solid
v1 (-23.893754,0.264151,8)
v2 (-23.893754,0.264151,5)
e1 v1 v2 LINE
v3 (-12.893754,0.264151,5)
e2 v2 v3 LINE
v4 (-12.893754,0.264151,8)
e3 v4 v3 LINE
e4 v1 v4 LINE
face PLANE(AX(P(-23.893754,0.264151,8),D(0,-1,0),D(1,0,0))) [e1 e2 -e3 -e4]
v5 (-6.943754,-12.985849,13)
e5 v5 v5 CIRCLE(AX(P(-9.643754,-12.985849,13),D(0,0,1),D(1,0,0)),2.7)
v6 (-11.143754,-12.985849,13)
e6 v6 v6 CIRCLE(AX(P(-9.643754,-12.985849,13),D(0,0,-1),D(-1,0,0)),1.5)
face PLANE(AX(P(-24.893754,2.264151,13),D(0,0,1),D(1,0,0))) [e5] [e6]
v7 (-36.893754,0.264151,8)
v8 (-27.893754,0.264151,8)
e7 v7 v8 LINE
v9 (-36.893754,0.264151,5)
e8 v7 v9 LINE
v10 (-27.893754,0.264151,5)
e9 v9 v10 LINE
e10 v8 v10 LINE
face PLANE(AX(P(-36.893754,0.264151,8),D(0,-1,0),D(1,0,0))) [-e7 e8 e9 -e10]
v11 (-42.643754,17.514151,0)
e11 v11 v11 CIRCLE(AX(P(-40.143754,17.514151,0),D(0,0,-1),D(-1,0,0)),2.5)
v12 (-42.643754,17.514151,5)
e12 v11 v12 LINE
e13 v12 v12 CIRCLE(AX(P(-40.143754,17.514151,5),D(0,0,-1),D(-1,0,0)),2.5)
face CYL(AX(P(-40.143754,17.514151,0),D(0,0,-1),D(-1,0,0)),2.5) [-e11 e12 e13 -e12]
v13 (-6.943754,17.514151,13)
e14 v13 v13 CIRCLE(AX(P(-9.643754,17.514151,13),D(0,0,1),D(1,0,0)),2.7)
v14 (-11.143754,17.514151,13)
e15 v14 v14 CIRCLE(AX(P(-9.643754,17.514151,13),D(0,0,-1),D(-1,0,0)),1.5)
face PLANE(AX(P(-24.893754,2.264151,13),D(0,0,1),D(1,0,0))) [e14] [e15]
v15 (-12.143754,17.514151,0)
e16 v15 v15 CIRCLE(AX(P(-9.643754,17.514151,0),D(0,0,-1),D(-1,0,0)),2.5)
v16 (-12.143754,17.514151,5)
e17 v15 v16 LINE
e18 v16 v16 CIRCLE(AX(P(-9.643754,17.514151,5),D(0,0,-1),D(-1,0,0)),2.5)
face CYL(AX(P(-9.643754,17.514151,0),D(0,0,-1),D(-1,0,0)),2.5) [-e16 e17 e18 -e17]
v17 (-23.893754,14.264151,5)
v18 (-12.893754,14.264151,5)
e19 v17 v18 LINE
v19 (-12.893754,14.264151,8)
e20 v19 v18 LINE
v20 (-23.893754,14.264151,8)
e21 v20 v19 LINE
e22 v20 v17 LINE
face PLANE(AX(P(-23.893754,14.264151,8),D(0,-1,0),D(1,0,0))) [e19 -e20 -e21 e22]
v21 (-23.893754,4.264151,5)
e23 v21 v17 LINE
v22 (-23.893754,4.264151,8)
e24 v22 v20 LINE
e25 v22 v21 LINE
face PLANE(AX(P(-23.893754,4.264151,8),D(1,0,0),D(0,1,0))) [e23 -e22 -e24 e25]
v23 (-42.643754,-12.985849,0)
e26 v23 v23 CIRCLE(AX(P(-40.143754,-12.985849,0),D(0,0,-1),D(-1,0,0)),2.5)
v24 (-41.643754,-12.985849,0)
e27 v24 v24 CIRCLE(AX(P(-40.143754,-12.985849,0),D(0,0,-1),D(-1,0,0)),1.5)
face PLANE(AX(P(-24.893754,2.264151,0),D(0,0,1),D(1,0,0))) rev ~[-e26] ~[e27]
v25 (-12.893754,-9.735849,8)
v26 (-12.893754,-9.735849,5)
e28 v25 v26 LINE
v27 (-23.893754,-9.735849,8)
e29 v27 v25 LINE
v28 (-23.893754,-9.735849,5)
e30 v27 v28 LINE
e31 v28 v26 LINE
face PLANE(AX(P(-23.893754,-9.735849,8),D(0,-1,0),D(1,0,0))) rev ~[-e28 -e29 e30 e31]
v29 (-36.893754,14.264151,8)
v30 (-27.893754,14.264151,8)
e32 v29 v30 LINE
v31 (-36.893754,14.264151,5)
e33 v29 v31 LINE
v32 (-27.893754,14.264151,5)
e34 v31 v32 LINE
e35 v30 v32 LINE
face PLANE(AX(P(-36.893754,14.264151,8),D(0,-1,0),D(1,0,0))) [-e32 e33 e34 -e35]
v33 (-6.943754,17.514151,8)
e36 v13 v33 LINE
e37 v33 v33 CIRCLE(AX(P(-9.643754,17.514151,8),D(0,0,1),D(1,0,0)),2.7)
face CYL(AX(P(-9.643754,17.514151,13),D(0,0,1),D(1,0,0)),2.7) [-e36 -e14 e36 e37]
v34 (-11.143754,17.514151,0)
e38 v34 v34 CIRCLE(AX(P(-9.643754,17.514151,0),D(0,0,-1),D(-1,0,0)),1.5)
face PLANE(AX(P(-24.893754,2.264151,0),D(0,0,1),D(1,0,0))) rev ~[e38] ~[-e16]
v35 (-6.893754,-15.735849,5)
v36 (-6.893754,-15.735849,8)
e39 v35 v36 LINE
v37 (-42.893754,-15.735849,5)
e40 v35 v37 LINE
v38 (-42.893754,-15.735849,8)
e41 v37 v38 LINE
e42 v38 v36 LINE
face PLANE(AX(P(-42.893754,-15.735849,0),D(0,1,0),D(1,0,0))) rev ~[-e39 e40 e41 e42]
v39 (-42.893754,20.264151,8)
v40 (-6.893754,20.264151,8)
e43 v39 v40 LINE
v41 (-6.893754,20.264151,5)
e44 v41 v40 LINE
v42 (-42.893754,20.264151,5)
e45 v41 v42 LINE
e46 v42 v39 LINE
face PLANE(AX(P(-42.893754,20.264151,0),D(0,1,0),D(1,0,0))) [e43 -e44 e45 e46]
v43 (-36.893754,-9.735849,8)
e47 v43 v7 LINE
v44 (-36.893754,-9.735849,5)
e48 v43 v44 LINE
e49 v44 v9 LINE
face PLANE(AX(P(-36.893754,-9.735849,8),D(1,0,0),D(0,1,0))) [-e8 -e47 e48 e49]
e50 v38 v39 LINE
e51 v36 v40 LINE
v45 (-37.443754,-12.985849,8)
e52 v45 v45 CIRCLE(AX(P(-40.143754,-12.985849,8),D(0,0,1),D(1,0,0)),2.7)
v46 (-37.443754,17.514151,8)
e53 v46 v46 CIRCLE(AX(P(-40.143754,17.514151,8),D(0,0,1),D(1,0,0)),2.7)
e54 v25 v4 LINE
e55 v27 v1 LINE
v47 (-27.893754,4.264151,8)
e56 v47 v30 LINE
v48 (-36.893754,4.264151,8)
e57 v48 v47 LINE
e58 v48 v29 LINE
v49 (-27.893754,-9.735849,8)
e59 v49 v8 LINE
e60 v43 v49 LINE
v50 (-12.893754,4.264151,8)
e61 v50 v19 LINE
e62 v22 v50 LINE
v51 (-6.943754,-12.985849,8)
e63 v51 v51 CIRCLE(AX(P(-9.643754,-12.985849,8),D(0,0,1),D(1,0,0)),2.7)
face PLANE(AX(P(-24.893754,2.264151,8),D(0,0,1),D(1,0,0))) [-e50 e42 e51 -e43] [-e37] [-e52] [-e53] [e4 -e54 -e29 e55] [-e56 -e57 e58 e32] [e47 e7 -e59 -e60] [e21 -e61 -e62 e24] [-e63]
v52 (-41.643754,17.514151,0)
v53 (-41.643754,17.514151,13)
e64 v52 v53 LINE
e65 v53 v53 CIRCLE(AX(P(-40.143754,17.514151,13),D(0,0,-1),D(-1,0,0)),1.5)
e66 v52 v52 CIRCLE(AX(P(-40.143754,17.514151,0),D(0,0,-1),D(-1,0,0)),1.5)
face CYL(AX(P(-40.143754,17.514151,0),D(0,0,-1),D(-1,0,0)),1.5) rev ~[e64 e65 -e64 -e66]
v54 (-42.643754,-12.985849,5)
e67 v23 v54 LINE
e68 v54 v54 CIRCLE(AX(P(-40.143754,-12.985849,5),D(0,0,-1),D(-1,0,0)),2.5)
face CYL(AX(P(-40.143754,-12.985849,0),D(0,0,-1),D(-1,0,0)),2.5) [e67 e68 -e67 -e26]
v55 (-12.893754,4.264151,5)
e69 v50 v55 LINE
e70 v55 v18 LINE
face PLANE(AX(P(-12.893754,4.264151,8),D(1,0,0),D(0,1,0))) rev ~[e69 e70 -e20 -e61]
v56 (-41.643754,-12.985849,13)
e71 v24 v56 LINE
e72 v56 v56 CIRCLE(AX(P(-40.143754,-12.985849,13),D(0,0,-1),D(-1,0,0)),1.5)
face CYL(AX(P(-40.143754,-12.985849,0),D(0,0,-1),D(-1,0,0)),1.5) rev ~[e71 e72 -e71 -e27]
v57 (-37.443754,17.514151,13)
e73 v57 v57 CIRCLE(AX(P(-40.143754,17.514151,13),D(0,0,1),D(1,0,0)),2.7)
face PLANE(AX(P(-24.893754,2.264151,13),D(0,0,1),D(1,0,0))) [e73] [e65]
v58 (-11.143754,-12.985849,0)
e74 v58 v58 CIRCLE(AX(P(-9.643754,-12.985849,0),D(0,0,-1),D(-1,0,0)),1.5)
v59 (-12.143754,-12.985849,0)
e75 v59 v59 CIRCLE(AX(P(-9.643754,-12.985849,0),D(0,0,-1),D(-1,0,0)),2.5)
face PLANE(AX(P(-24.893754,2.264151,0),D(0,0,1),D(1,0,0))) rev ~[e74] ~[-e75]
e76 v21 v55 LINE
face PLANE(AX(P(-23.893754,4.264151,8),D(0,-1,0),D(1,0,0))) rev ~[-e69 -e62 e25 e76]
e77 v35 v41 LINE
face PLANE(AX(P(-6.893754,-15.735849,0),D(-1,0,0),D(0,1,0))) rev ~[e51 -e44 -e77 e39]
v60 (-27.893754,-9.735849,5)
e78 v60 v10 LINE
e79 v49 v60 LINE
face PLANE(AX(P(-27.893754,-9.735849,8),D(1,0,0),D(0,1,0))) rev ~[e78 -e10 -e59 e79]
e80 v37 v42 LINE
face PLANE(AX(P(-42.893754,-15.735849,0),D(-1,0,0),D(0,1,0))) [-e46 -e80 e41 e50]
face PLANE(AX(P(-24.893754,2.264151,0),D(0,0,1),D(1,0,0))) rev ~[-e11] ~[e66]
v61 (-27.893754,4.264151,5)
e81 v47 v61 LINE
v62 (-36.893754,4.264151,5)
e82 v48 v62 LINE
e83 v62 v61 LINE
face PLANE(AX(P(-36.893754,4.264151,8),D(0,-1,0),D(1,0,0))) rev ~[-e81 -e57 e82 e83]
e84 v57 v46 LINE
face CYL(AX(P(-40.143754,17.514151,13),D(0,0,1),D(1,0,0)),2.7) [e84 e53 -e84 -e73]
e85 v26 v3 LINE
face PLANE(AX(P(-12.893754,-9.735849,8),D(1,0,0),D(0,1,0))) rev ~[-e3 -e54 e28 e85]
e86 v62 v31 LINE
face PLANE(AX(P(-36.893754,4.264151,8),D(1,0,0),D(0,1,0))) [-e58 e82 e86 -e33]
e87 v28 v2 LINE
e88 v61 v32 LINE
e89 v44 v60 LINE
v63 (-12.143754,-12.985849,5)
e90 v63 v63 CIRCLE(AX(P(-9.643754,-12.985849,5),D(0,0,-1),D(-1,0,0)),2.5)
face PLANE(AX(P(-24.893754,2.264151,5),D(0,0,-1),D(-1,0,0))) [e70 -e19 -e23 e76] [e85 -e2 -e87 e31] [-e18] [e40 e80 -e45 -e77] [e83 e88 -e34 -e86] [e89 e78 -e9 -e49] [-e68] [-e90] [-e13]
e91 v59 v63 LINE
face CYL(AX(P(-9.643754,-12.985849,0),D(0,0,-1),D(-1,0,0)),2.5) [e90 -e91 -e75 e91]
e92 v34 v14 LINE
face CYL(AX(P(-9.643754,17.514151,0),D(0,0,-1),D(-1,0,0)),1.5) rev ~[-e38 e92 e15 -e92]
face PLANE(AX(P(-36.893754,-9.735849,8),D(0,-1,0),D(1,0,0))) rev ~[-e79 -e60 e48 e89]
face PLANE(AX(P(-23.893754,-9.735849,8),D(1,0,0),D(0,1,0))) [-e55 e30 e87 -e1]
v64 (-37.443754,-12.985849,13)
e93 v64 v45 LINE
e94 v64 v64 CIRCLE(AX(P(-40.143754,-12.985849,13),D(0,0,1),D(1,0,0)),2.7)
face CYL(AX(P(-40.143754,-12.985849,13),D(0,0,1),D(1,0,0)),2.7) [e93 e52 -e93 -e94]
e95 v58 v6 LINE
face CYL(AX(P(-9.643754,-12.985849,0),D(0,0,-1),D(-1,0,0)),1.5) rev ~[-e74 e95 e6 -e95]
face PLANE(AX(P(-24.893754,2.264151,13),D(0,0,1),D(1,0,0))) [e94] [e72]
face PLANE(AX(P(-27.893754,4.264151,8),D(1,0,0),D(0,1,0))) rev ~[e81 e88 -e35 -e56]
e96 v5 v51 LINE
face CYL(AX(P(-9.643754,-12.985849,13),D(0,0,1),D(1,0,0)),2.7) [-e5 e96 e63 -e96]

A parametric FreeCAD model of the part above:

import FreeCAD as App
import Part
import Sketcher

V = App.Vector
Q = App.Units.Quantity

doc = App.newDocument("Part")
body = doc.addObject("PartDesign::Body", "Body")

# Sketch on XY plane
sketch1 = body.newObject("Sketcher::SketchObject", "Sketch")
sketch1.AttachmentSupport = (doc.getObject("XY_Plane"), [""])
sketch1.MapMode = "FlatFace"
sketch1.addGeometry([
    Part.LineSegment(V(-43, 20, 0), V(-43, -16, 0)),
    Part.LineSegment(V(-43, -16, 0), V(-7, -16, 0)),
    Part.LineSegment(V(-7, -16, 0), V(-7, 20, 0)),
    Part.LineSegment(V(-7, 20, 0), V(-43, 20, 0)),
], False)
sketch1.addConstraint([
    Sketcher.Constraint("Coincident", 0, 2, 1, 1),
    Sketcher.Constraint("Coincident", 1, 2, 2, 1),
    Sketcher.Constraint("Coincident", 2, 2, 3, 1),
    Sketcher.Constraint("Coincident", 3, 2, 0, 1),
    Sketcher.Constraint("Vertical", 0),
    Sketcher.Constraint("Horizontal", 1),
    Sketcher.Constraint("Vertical", 2),
    Sketcher.Constraint("Horizontal", 3),
    Sketcher.Constraint("Equal", 3, 0),
    Sketcher.Constraint("DistanceX", 1, 1, 1, 2, Q("36 mm")),
    Sketcher.Constraint("DistanceY", 0, 2, -1, 1, Q("15.735849 mm")),
    Sketcher.Constraint("DistanceX", 0, 2, -1, 1, Q("42.893754 mm")),
])
pad1 = body.newObject("PartDesign::Pad", "Pad")
pad1.Profile = sketch1
pad1.Length = 13

# Sketch on XY plane
sketch2 = body.newObject("Sketcher::SketchObject", "Sketch001")
sketch2.AttachmentSupport = (doc.getObject("XY_Plane"), [""])
sketch2.MapMode = "FlatFace"
sketch2.addGeometry([
    Part.Circle(V(-40.1, 17.5, 0), V(0, 0, 1), 1.5),
    Part.Circle(V(-40.1, -13, 0), V(0, 0, 1), 1.5),
    Part.Circle(V(-9.6, -13, 0), V(0, 0, 1), 1.5),
    Part.Circle(V(-9.6, 17.5, 0), V(0, 0, 1), 1.5),
], False)
sketch2.addConstraint([
    Sketcher.Constraint("Equal", 0, 1),
    Sketcher.Constraint("Equal", 1, 2),
    Sketcher.Constraint("Equal", 2, 3),
    Sketcher.Constraint("Horizontal", 1, 3, 2, 3),
    Sketcher.Constraint("Horizontal", 0, 3, 3, 3),
    Sketcher.Constraint("Vertical", 0, 3, 1, 3),
    Sketcher.Constraint("Vertical", 2, 3, 3, 3),
    Sketcher.Constraint("Diameter", 0, Q("3 mm")),
    Sketcher.Constraint("DistanceY", 1, 3, 0, 3, Q("30.5 mm")),
    Sketcher.Constraint("DistanceX", 1, 3, 2, 3, Q("30.5 mm")),
    Sketcher.Constraint("DistanceY", -1, 1, 0, 3, Q("17.514151 mm")),
    Sketcher.Constraint("DistanceX", 0, 3, -1, 1, Q("40.143754 mm")),
])
pocket1 = body.newObject("PartDesign::Pocket", "Pocket")
pocket1.Profile = sketch2
pocket1.Length = 13
pocket1.Reversed = True

# Sketch on XY plane
sketch3 = body.newObject("Sketcher::SketchObject", "Sketch002")
sketch3.AttachmentSupport = (doc.getObject("XY_Plane"), [""])
sketch3.MapMode = "FlatFace"
sketch3.addGeometry([
    Part.LineSegment(V(-6.9, 20.3, 0), V(-6.9, -15.7, 0)),  # 0
    Part.LineSegment(V(-6.9, -15.7, 0), V(-42.9, -15.7, 0)),  # 1
    Part.LineSegment(V(-42.9, -15.7, 0), V(-42.9, 20.3, 0)),  # 2
    Part.LineSegment(V(-42.9, 20.3, 0), V(-6.9, 20.3, 0)),  # 3
    Part.Circle(V(-9.6, -13, 0), V(0, 0, 1), 2.5),  # 4
    Part.Circle(V(-40.1, -13, 0), V(0, 0, 1), 2.5),  # 5
    Part.Circle(V(-9.6, 17.5, 0), V(0, 0, 1), 2.5),  # 6
    Part.Circle(V(-40.1, 17.5, 0), V(0, 0, 1), 2.5),  # 7
], False)
sketch3.addConstraint([
    Sketcher.Constraint("Coincident", 0, 2, 1, 1),
    Sketcher.Constraint("Coincident", 1, 2, 2, 1),
    Sketcher.Constraint("Coincident", 2, 2, 3, 1),
    Sketcher.Constraint("Coincident", 3, 2, 0, 1),
    Sketcher.Constraint("Vertical", 0),
    Sketcher.Constraint("Horizontal", 1),
    Sketcher.Constraint("Vertical", 2),
    Sketcher.Constraint("Horizontal", 3),
    Sketcher.Constraint("Equal", 4, 5),
    Sketcher.Constraint("Equal", 5, 6),
    Sketcher.Constraint("Equal", 6, 7),
    Sketcher.Constraint("Horizontal", 4, 3, 5, 3),
    Sketcher.Constraint("Horizontal", 6, 3, 7, 3),
    Sketcher.Constraint("Vertical", 4, 3, 6, 3),
    Sketcher.Constraint("Vertical", 5, 3, 7, 3),
    Sketcher.Constraint("Equal", 3, 0),
    Sketcher.Constraint("Diameter", 4, Q("5 mm")),
    Sketcher.Constraint("DistanceX", 1, 2, 1, 1, Q("36 mm")),
    Sketcher.Constraint("DistanceX", 5, 3, 4, 3, Q("30.5 mm")),
    Sketcher.Constraint("DistanceY", 4, 3, 6, 3, Q("30.5 mm")),
    Sketcher.Constraint("DistanceX", 4, 3, 0, 2, Q("2.75 mm")),
    Sketcher.Constraint("DistanceY", 0, 2, 4, 3, Q("2.75 mm")),
    Sketcher.Constraint("DistanceY", 4, 3, -1, 1, Q("12.985849 mm")),
    Sketcher.Constraint("DistanceX", 4, 3, -1, 1, Q("9.643754 mm")),
])
pocket2 = body.newObject("PartDesign::Pocket", "Pocket001")
pocket2.Profile = sketch3
pocket2.Length = 5
pocket2.Reversed = True

# Sketch on XY plane
sketch4 = body.newObject("Sketcher::SketchObject", "Sketch003")
sketch4.AttachmentSupport = (doc.getObject("XY_Plane"), [""])
sketch4.MapMode = "FlatFace"
sketch4.AttachmentOffset = App.Placement(V(0, 0, 13), App.Rotation())
sketch4.addGeometry([
    Part.LineSegment(V(-42.9, 20.3, 0), V(-42.9, -15.7, 0)),  # 0
    Part.LineSegment(V(-42.9, -15.7, 0), V(-6.9, -15.7, 0)),  # 1
    Part.LineSegment(V(-6.9, -15.7, 0), V(-6.9, 20.3, 0)),  # 2
    Part.LineSegment(V(-6.9, 20.3, 0), V(-42.9, 20.3, 0)),  # 3
    Part.Circle(V(-40.1, -13, 0), V(0, 0, 1), 2.7),  # 4
    Part.Circle(V(-9.6, -13, 0), V(0, 0, 1), 2.7),  # 5
    Part.Circle(V(-40.1, 17.5, 0), V(0, 0, 1), 2.7),  # 6
    Part.Circle(V(-9.6, 17.5, 0), V(0, 0, 1), 2.7),  # 7
], False)
sketch4.addConstraint([
    Sketcher.Constraint("Coincident", 0, 2, 1, 1),
    Sketcher.Constraint("Coincident", 1, 2, 2, 1),
    Sketcher.Constraint("Coincident", 2, 2, 3, 1),
    Sketcher.Constraint("Coincident", 3, 2, 0, 1),
    Sketcher.Constraint("Vertical", 0),
    Sketcher.Constraint("Horizontal", 1),
    Sketcher.Constraint("Vertical", 2),
    Sketcher.Constraint("Horizontal", 3),
    Sketcher.Constraint("Equal", 4, 5),
    Sketcher.Constraint("Equal", 5, 6),
    Sketcher.Constraint("Equal", 6, 7),
    Sketcher.Constraint("Horizontal", 4, 3, 5, 3),
    Sketcher.Constraint("Horizontal", 6, 3, 7, 3),
    Sketcher.Constraint("Vertical", 4, 3, 6, 3),
    Sketcher.Constraint("Vertical", 5, 3, 7, 3),
    Sketcher.Constraint("Equal", 3, 0),
    Sketcher.Constraint("Diameter", 4, Q("5.4 mm")),
    Sketcher.Constraint("DistanceX", 1, 1, 1, 2, Q("36 mm")),
    Sketcher.Constraint("DistanceX", 4, 3, 5, 3, Q("30.5 mm")),
    Sketcher.Constraint("DistanceY", 4, 3, 6, 3, Q("30.5 mm")),
    Sketcher.Constraint("DistanceX", 0, 2, 4, 3, Q("2.75 mm")),
    Sketcher.Constraint("DistanceY", 0, 2, 4, 3, Q("2.75 mm")),
    Sketcher.Constraint("DistanceY", 4, 3, -1, 1, Q("12.985849 mm")),
    Sketcher.Constraint("DistanceX", 4, 3, -1, 1, Q("40.143754 mm")),
])
pocket3 = body.newObject("PartDesign::Pocket", "Pocket002")
pocket3.Profile = sketch4
pocket3.Length = 5

# Sketch on XY plane
sketch5 = body.newObject("Sketcher::SketchObject", "Sketch004")
sketch5.AttachmentSupport = (doc.getObject("XY_Plane"), [""])
sketch5.MapMode = "FlatFace"
sketch5.AttachmentOffset = App.Placement(V(0, 0, 8), App.Rotation())
sketch5.addGeometry([
    Part.LineSegment(V(-37, 0, 0), V(-37, -10, 0)),  # 0
    Part.LineSegment(V(-37, -10, 0), V(-28, -10, 0)),  # 1
    Part.LineSegment(V(-28, -10, 0), V(-28, 0, 0)),  # 2
    Part.LineSegment(V(-28, 0, 0), V(-37, 0, 0)),  # 3
    Part.LineSegment(V(-37, 14, 0), V(-37, 4, 0)),  # 4
    Part.LineSegment(V(-37, 4, 0), V(-28, 4, 0)),  # 5
    Part.LineSegment(V(-28, 4, 0), V(-28, 14, 0)),  # 6
    Part.LineSegment(V(-28, 14, 0), V(-37, 14, 0)),  # 7
    Part.LineSegment(V(-24, 0, 0), V(-24, -10, 0)),  # 8
    Part.LineSegment(V(-24, -10, 0), V(-13, -10, 0)),  # 9
    Part.LineSegment(V(-13, -10, 0), V(-13, 0, 0)),  # 10
    Part.LineSegment(V(-13, 0, 0), V(-24, 0, 0)),  # 11
    Part.LineSegment(V(-24, 14, 0), V(-24, 4, 0)),  # 12
    Part.LineSegment(V(-24, 4, 0), V(-13, 4, 0)),  # 13
    Part.LineSegment(V(-13, 4, 0), V(-13, 14, 0)),  # 14
    Part.LineSegment(V(-13, 14, 0), V(-24, 14, 0)),  # 15
], False)
sketch5.addConstraint([
    Sketcher.Constraint("Coincident", 0, 2, 1, 1),
    Sketcher.Constraint("Coincident", 1, 2, 2, 1),
    Sketcher.Constraint("Coincident", 2, 2, 3, 1),
    Sketcher.Constraint("Coincident", 3, 2, 0, 1),
    Sketcher.Constraint("Coincident", 4, 2, 5, 1),
    Sketcher.Constraint("Coincident", 5, 2, 6, 1),
    Sketcher.Constraint("Coincident", 6, 2, 7, 1),
    Sketcher.Constraint("Coincident", 7, 2, 4, 1),
    Sketcher.Constraint("Coincident", 8, 2, 9, 1),
    Sketcher.Constraint("Coincident", 9, 2, 10, 1),
    Sketcher.Constraint("Coincident", 10, 2, 11, 1),
    Sketcher.Constraint("Coincident", 11, 2, 8, 1),
    Sketcher.Constraint("Coincident", 12, 2, 13, 1),
    Sketcher.Constraint("Coincident", 13, 2, 14, 1),
    Sketcher.Constraint("Coincident", 14, 2, 15, 1),
    Sketcher.Constraint("Coincident", 15, 2, 12, 1),
    Sketcher.Constraint("Vertical", 0),
    Sketcher.Constraint("Horizontal", 1),
    Sketcher.Constraint("Vertical", 2),
    Sketcher.Constraint("Horizontal", 3),
    Sketcher.Constraint("Vertical", 4),
    Sketcher.Constraint("Horizontal", 5),
    Sketcher.Constraint("Vertical", 6),
    Sketcher.Constraint("Horizontal", 7),
    Sketcher.Constraint("Vertical", 8),
    Sketcher.Constraint("Horizontal", 9),
    Sketcher.Constraint("Vertical", 10),
    Sketcher.Constraint("Horizontal", 11),
    Sketcher.Constraint("Vertical", 12),
    Sketcher.Constraint("Horizontal", 13),
    Sketcher.Constraint("Vertical", 14),
    Sketcher.Constraint("Horizontal", 15),
    Sketcher.Constraint("Horizontal", 1, 2, 8, 2),
    Sketcher.Constraint("Horizontal", 3, 2, 10, 2),
    Sketcher.Constraint("Horizontal", 5, 2, 12, 2),
    Sketcher.Constraint("Horizontal", 7, 2, 14, 2),
    Sketcher.Constraint("Vertical", 3, 2, 4, 2),
    Sketcher.Constraint("Vertical", 2, 2, 5, 2),
    Sketcher.Constraint("Vertical", 11, 2, 12, 2),
    Sketcher.Constraint("Vertical", 10, 2, 13, 2),
    Sketcher.Constraint("Equal", 2, 4),
    Sketcher.Constraint("DistanceX", 1, 1, 1, 2, Q("9 mm")),
    Sketcher.Constraint("DistanceX", 9, 1, 9, 2, Q("11 mm")),
    Sketcher.Constraint("DistanceY", 0, 2, 0, 1, Q("10 mm")),
    Sketcher.Constraint("DistanceY", 3, 2, 4, 2, Q("4 mm")),
    Sketcher.Constraint("DistanceX", 1, 2, 8, 2, Q("4 mm")),
    Sketcher.Constraint("DistanceY", 0, 2, -1, 1, Q("9.735849 mm")),
    Sketcher.Constraint("DistanceX", 0, 2, -1, 1, Q("36.893754 mm")),
])
pocket4 = body.newObject("PartDesign::Pocket", "Pocket003")
pocket4.Profile = sketch5
pocket4.Length = 3

doc.recompute()
